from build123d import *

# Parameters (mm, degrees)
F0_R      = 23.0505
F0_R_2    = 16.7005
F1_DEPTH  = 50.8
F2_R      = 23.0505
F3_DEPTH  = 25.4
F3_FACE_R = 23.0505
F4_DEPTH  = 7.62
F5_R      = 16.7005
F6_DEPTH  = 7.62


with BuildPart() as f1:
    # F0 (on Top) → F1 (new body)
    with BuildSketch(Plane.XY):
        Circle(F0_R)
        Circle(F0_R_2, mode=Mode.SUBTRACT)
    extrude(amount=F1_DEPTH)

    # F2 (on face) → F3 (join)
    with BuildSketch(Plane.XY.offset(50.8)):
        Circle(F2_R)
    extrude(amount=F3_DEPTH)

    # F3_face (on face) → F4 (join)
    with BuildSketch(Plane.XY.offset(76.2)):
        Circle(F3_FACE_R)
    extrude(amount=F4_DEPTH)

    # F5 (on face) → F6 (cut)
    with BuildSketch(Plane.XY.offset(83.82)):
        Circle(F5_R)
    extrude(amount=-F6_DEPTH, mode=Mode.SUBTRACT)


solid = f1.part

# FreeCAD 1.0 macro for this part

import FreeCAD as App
import Part
import Sketcher

V = App.Vector
Q = App.Units.Quantity

doc = App.newDocument("Part")
body = doc.addObject("PartDesign::Body", "Body")

# Sketch on XY plane
sketch1 = body.newObject("Sketcher::SketchObject", "Sketch")
sketch1.AttachmentSupport = (doc.getObject("XY_Plane"), [""])
sketch1.MapMode = "FlatFace"
sketch1.addGeometry(Part.Circle(V(0, 0, 0), V(0, 0, 1), 23.0505), False)
sketch1.addGeometry(Part.Circle(V(0, 0, 0), V(0, 0, 1), 16.7005), False)
sketch1.addConstraint(Sketcher.Constraint("Coincident", 0, 3, -1, 1))
sketch1.addConstraint(Sketcher.Constraint("Coincident", 1, 3, -1, 1))
sketch1.addConstraint(Sketcher.Constraint("Diameter", 0, Q("1.815 in")))
sketch1.addConstraint(Sketcher.Constraint("Diameter", 1, Q("1.315 in")))
pad1 = body.newObject("PartDesign::Pad", "Pad")
pad1.Profile = sketch1
pad1.Length = Q("2 in")

# Sketch on XY plane
sketch2 = body.newObject("Sketcher::SketchObject", "Sketch001")
sketch2.AttachmentSupport = (doc.getObject("XY_Plane"), [""])
sketch2.MapMode = "FlatFace"
sketch2.AttachmentOffset = App.Placement(V(0, 0, 2 * 25.4), App.Rotation())
sketch2.addGeometry(Part.Circle(V(0, 0, 0), V(0, 0, 1), 23.0505), False)
sketch2.addConstraint(Sketcher.Constraint("Coincident", 0, 3, -1, 1))
sketch2.addConstraint(Sketcher.Constraint("Diameter", 0, Q("1.815 in")))
pad2 = body.newObject("PartDesign::Pad", "Pad001")
pad2.Profile = sketch2
pad2.Length = Q("1 in")

# Sketch on XY plane
sketch3 = body.newObject("Sketcher::SketchObject", "Sketch002")
sketch3.AttachmentSupport = (doc.getObject("XY_Plane"), [""])
sketch3.MapMode = "FlatFace"
sketch3.AttachmentOffset = App.Placement(V(0, 0, 3 * 25.4), App.Rotation())
sketch3.addGeometry(Part.Circle(V(0, 0, 0), V(0, 0, 1), 23.0505), False)
sketch3.addConstraint(Sketcher.Constraint("Coincident", 0, 3, -1, 1))
sketch3.addConstraint(Sketcher.Constraint("Diameter", 0, Q("1.815 in")))
pad3 = body.newObject("PartDesign::Pad", "Pad002")
pad3.Profile = sketch3
pad3.Length = Q("0.3 in")

# Sketch on XY plane
sketch4 = body.newObject("Sketcher::SketchObject", "Sketch003")
sketch4.AttachmentSupport = (doc.getObject("XY_Plane"), [""])
sketch4.MapMode = "FlatFace"
sketch4.AttachmentOffset = App.Placement(V(0, 0, 3.3 * 25.4), App.Rotation())
sketch4.addGeometry(Part.Circle(V(0, 0, 0), V(0, 0, 1), 16.7005), False)
sketch4.addConstraint(Sketcher.Constraint("Coincident", 0, 3, -1, 1))
sketch4.addConstraint(Sketcher.Constraint("Diameter", 0, Q("1.315 in")))
pocket1 = body.newObject("PartDesign::Pocket", "Pocket")
pocket1.Profile = sketch4
pocket1.Length = Q("0.3 in")

doc.recompute()
